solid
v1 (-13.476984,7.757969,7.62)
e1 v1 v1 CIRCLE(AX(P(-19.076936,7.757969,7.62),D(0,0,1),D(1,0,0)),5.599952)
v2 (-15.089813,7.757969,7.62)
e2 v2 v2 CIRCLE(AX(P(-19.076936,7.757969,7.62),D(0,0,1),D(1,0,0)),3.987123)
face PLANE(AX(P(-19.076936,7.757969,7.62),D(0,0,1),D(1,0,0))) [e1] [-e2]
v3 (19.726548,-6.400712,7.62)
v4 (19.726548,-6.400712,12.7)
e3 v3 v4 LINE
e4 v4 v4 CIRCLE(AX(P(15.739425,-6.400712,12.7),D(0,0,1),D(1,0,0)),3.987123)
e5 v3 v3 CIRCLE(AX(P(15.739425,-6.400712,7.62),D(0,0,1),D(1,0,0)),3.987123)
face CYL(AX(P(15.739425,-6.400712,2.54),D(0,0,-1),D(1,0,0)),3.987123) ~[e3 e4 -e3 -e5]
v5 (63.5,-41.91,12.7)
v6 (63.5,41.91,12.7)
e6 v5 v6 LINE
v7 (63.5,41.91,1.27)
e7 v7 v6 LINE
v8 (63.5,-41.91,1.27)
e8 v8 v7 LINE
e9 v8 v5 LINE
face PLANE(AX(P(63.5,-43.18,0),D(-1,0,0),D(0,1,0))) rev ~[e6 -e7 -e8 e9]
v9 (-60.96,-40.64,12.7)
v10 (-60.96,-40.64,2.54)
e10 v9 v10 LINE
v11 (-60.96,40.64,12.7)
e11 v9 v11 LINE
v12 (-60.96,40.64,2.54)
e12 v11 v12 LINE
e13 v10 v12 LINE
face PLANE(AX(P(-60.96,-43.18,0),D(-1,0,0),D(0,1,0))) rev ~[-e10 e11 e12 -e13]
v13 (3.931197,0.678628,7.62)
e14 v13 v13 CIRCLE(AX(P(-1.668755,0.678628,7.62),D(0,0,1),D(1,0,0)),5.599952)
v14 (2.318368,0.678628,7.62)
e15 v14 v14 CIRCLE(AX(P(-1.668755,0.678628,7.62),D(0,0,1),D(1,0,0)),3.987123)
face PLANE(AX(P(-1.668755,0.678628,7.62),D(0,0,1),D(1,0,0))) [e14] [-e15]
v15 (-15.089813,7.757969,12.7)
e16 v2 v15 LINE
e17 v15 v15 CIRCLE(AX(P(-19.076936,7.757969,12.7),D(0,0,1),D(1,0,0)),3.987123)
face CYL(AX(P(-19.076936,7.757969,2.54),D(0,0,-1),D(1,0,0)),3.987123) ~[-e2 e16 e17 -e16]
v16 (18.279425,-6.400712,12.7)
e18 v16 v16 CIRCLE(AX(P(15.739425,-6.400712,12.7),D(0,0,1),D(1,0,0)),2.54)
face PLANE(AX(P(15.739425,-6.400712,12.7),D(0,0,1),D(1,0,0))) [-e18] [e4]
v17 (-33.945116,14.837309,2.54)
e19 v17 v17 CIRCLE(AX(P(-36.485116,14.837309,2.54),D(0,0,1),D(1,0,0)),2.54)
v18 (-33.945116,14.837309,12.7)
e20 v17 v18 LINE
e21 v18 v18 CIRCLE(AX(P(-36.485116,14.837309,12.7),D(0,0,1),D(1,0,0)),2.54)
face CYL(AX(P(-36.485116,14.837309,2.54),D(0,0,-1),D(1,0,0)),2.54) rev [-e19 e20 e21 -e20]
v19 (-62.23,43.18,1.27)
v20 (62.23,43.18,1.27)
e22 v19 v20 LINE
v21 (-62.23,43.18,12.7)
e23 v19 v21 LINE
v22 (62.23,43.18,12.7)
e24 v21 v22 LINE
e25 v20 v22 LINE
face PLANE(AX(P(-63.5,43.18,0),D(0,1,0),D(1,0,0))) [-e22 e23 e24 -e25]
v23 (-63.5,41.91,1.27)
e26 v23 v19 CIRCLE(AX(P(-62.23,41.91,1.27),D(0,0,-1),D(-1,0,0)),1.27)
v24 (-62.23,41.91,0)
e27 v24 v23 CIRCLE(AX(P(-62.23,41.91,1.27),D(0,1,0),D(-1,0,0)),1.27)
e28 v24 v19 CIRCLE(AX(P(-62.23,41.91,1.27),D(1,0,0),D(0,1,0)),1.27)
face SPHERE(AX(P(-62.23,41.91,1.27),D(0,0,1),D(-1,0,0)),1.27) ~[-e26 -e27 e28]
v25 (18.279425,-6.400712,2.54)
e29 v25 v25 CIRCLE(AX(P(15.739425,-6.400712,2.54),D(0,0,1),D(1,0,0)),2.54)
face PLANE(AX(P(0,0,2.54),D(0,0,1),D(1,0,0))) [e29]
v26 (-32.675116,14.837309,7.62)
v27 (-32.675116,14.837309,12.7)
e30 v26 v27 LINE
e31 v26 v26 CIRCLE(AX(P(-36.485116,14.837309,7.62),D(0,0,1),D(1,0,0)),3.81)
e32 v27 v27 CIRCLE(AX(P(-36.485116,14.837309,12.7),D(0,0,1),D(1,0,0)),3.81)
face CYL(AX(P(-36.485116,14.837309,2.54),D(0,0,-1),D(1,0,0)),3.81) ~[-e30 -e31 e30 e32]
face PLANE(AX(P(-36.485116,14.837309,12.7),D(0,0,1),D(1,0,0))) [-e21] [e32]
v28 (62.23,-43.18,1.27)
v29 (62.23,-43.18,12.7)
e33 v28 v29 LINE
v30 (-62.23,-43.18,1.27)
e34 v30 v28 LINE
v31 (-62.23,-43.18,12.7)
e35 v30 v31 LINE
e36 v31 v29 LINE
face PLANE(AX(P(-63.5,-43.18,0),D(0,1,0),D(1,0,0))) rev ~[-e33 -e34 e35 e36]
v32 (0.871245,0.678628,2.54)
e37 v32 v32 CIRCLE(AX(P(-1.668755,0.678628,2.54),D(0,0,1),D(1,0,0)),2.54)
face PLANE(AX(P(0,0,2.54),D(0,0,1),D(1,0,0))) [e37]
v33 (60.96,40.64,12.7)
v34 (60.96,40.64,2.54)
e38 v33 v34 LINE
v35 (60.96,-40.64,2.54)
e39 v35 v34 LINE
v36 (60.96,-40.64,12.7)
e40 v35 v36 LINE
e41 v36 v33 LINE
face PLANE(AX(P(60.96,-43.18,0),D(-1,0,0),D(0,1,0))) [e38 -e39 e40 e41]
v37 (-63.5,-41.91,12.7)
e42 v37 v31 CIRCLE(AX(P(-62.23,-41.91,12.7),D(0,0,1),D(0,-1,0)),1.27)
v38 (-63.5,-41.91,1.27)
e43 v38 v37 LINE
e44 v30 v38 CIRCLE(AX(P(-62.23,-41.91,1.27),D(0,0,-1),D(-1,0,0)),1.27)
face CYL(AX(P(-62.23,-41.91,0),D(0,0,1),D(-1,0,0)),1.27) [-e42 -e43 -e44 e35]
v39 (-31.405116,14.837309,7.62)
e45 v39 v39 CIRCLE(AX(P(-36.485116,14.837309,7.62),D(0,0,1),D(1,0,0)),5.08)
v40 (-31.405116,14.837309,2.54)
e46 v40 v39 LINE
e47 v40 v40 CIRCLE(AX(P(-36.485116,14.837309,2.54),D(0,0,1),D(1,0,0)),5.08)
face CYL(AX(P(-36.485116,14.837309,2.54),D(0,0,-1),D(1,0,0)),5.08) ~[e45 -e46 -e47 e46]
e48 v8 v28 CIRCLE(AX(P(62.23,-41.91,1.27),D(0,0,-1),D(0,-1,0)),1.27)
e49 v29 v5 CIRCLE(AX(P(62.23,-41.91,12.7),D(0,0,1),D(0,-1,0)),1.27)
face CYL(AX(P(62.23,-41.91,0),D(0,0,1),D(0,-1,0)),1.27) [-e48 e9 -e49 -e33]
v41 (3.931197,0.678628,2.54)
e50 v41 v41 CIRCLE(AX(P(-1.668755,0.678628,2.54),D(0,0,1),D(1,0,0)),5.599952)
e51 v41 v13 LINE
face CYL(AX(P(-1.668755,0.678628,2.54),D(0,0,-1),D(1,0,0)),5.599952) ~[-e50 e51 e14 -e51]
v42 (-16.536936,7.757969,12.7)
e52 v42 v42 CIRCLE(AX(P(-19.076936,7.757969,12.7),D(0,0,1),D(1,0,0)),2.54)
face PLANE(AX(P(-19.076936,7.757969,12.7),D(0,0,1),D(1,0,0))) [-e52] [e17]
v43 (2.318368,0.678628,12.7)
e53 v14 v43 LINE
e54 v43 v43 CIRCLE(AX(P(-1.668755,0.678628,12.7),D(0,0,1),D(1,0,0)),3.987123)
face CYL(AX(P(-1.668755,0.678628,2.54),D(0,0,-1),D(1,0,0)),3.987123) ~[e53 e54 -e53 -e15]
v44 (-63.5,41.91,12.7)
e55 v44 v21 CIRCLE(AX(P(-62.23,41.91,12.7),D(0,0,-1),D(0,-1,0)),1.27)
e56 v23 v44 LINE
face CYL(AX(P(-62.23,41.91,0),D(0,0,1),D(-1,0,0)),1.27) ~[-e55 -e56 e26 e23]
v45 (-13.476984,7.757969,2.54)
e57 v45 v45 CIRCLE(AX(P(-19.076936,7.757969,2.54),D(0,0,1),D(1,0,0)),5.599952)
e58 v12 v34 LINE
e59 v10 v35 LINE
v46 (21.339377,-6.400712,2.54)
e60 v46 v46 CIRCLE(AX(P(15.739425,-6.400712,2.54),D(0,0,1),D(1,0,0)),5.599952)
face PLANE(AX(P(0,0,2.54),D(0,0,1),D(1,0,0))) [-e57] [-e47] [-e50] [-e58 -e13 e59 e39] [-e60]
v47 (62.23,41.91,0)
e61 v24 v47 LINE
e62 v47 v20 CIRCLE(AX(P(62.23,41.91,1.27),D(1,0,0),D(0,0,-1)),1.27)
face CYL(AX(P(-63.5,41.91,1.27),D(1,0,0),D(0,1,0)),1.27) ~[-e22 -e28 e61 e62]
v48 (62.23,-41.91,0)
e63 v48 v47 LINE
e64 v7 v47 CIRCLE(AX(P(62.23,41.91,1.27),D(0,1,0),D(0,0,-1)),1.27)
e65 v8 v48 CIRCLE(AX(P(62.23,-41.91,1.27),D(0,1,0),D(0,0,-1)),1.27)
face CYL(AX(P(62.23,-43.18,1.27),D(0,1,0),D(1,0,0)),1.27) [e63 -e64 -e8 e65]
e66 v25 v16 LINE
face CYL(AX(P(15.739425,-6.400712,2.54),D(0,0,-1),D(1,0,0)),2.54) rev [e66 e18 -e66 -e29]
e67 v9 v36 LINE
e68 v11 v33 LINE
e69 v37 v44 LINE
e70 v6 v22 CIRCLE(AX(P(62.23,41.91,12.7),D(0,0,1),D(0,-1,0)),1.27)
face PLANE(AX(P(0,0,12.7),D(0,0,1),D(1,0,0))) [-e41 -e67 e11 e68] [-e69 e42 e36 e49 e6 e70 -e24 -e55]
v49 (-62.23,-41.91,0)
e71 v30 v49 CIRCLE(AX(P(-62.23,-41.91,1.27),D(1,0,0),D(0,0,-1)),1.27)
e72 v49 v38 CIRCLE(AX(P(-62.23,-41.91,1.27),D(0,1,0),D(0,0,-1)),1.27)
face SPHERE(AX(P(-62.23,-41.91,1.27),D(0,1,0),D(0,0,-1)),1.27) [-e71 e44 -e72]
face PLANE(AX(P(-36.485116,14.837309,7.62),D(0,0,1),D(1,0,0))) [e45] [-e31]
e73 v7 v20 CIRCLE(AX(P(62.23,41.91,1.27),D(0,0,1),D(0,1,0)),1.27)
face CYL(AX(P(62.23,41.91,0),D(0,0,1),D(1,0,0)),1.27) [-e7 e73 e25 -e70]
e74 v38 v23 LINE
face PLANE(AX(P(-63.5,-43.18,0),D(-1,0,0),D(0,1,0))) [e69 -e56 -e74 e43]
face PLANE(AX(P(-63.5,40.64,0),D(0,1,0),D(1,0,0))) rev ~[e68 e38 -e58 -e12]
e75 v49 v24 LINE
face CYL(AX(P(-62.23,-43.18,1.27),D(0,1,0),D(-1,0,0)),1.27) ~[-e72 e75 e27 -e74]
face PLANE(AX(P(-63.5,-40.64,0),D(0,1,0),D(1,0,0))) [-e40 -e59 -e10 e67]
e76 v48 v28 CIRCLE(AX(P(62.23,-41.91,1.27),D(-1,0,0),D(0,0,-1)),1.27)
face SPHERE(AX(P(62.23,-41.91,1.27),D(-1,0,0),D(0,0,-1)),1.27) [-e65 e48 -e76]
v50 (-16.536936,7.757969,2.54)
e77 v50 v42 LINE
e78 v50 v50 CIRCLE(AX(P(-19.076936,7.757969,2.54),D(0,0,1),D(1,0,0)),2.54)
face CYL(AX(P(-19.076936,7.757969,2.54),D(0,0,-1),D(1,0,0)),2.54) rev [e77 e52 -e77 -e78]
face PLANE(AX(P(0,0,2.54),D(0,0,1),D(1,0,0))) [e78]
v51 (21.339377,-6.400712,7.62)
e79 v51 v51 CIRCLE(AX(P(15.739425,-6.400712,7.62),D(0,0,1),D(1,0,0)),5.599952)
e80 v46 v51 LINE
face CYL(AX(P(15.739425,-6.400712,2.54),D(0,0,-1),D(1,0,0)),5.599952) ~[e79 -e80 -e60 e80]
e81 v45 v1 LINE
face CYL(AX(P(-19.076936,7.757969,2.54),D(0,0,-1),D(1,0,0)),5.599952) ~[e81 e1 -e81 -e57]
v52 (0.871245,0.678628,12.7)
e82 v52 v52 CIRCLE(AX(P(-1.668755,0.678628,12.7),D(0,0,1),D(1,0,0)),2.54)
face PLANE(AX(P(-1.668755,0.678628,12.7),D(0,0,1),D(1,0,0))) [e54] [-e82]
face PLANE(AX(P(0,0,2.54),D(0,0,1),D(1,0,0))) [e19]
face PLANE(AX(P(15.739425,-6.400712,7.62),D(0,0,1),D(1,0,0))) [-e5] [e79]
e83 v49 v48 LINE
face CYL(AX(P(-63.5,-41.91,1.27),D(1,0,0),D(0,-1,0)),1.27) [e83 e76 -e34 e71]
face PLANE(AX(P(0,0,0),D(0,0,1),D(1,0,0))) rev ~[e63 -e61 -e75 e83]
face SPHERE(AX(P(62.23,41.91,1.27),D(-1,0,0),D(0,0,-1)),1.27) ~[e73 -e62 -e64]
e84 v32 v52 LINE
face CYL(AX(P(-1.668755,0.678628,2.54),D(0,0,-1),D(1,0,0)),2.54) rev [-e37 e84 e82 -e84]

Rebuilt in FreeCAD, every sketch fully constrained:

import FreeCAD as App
import Part
import Sketcher

V = App.Vector
Q = App.Units.Quantity


def edges_at(feature, points):
    """Names of the edges that pass closest to the given points."""
    edges = feature.Shape.Edges
    near = lambda p: min(range(len(edges)), key=lambda i: edges[i].distToShape(Part.Vertex(*p))[0])
    return sorted({f"Edge{near(p) + 1}" for p in points})


def faces_at(feature, points):
    """Names of the faces that lie closest to the given points."""
    faces = feature.Shape.Faces
    near = lambda p: min(range(len(faces)), key=lambda i: faces[i].distToShape(Part.Vertex(*p))[0])
    return sorted({f"Face{near(p) + 1}" for p in points})

doc = App.newDocument("Part")
params = doc.addObject("Spreadsheet::Sheet", "Params")
for row, (alias, value) in enumerate([
    ("sketch1_width", "5 in"),
    ("sketch1_height", "3.4 in"),
    ("pad1_length", "0.5 in"),
    ("thickness_wall", "0.1 in"),
    ("fillet_radius", "0.05 in"),
    ("sketch2_diameter", "0.3 in"),
    ("sketch2_diameter2", "0.2 in"),
    ("pad2_length", "0.4 in"),
    ("sketch3_diameter", "0.4 in"),
    ("sketch3_diameter2", "0.3 in"),
    ("pad3_length", "0.2 in"),
    ("sketch4_diameter", "0.2 in"),
    ("pad4_length", "0.4 in"),
    ("pad5_length", "0.2 in"),
], start=1):
    params.set(f"A{row}", alias)
    params.set(f"B{row}", "=" + value)
    params.setAlias(f"B{row}", alias)

body = doc.addObject("PartDesign::Body", "Body")

sketch1 = body.newObject("Sketcher::SketchObject", "Sketch")
sketch1.AttachmentSupport = (doc.getObject("XY_Plane"), [""])
sketch1.MapMode = "FlatFace"
sketch1.addGeometry(Part.LineSegment(V(-63.5, 43.18, 0), V(-63.5, -43.18, 0)), False)
sketch1.addGeometry(Part.LineSegment(V(-63.5, -43.18, 0), V(63.5, -43.18, 0)), False)
sketch1.addGeometry(Part.LineSegment(V(63.5, -43.18, 0), V(63.5, 43.18, 0)), False)
sketch1.addGeometry(Part.LineSegment(V(63.5, 43.18, 0), V(-63.5, 43.18, 0)), False)
sketch1.addConstraint(Sketcher.Constraint("Coincident", 0, 2, 1, 1))
sketch1.addConstraint(Sketcher.Constraint("Coincident", 1, 2, 2, 1))
sketch1.addConstraint(Sketcher.Constraint("Coincident", 2, 2, 3, 1))
sketch1.addConstraint(Sketcher.Constraint("Coincident", 3, 2, 0, 1))
sketch1.addConstraint(Sketcher.Constraint("Vertical", 0))
sketch1.addConstraint(Sketcher.Constraint("Horizontal", 1))
sketch1.addConstraint(Sketcher.Constraint("Vertical", 2))
sketch1.addConstraint(Sketcher.Constraint("Horizontal", 3))
sketch1.addConstraint(Sketcher.Constraint("Symmetric", 0, 2, 2, 2, -1, 1))
sketch1.addConstraint(Sketcher.Constraint("DistanceX", 1, 1, 1, 2, Q("5 in")))
sketch1.addConstraint(Sketcher.Constraint("DistanceY", 0, 2, 0, 1, Q("3.4 in")))
sketch1.setExpression("Constraints[9]", "Params.sketch1_width")
sketch1.setExpression("Constraints[10]", "Params.sketch1_height")
pad1 = body.newObject("PartDesign::Pad", "Pad")
pad1.Profile = sketch1
pad1.setExpression("Length", "Params.pad1_length")
doc.recompute()

thickness = body.newObject("PartDesign::Thickness", "Thickness")
thickness.Base = (pad1, faces_at(pad1, [(0, 0, 12.7)]))
thickness.setExpression("Value", "Params.thickness_wall")
thickness.Reversed = True
thickness.Join = "Arc"
doc.recompute()

fillet = body.newObject("PartDesign::Fillet", "Fillet")
fillet.Base = (thickness, edges_at(thickness, [
    (-63.5, 43.18, 6.35),
    (-63.5, 0, 0),
    (0, -43.18, 0),
    (0, 43.18, 0),
    (63.5, 0, 0),
    (63.5, 43.18, 6.35),
    (63.5, -43.18, 6.35),
    (-63.5, -43.18, 6.35),
]))
fillet.setExpression("Radius", "Params.fillet_radius")

sketch2 = body.newObject("Sketcher::SketchObject", "Sketch001")
sketch2.AttachmentSupport = (doc.getObject("XY_Plane"), [""])
sketch2.MapMode = "FlatFace"
sketch2.AttachmentOffset = App.Placement(V(0, 0, 0.1 * 25.4), App.Rotation())
sketch2.addGeometry(Part.Circle(V(-36.485116, 14.837309, 0), V(0, 0, 1), 3.81), False)
sketch2.addGeometry(Part.Circle(V(-36.485116, 14.837309, 0), V(0, 0, 1), 2.54), False)
sketch2.addGeometry(Part.Circle(V(-1.668755, 0.678628, 0), V(0, 0, 1), 3.987123), False)
sketch2.addGeometry(Part.Circle(V(-1.668755, 0.678628, 0), V(0, 0, 1), 2.54), False)
sketch2.addConstraint(Sketcher.Constraint("Coincident", 1, 3, 0, 3))
sketch2.addConstraint(Sketcher.Constraint("Coincident", 3, 3, 2, 3))
sketch2.addConstraint(Sketcher.Constraint("Equal", 1, 3))
sketch2.addConstraint(Sketcher.Constraint("Diameter", 0, Q("0.3 in")))
sketch2.addConstraint(Sketcher.Constraint("Diameter", 1, Q("0.2 in")))
sketch2.addConstraint(Sketcher.Constraint("Diameter", 2, 7.974246))
sketch2.addConstraint(Sketcher.Constraint("DistanceY", -1, 1, 0, 3, 14.837309))
sketch2.addConstraint(Sketcher.Constraint("DistanceY", -1, 1, 2, 3, 0.678628))
sketch2.addConstraint(Sketcher.Constraint("DistanceX", 0, 3, 2, 3, 34.816361))
sketch2.addConstraint(Sketcher.Constraint("DistanceX", 0, 3, -1, 1, 36.485116))
sketch2.setExpression("Constraints[3]", "Params.sketch2_diameter")
sketch2.setExpression("Constraints[4]", "Params.sketch2_diameter2")
pad2 = body.newObject("PartDesign::Pad", "Pad001")
pad2.Profile = sketch2
pad2.setExpression("Length", "Params.pad2_length")

sketch3 = body.newObject("Sketcher::SketchObject", "Sketch002")
sketch3.AttachmentSupport = (doc.getObject("XY_Plane"), [""])
sketch3.MapMode = "FlatFace"
sketch3.AttachmentOffset = App.Placement(V(0, 0, 0.1 * 25.4), App.Rotation())
sketch3.addGeometry(Part.Circle(V(-36.485116, 14.837309, 0), V(0, 0, 1), 5.08), False)
sketch3.addGeometry(Part.Circle(V(-36.485116, 14.837309, 0), V(0, 0, 1), 3.81), False)
sketch3.addGeometry(Part.Circle(V(-1.668755, 0.678628, 0), V(0, 0, 1), 5.599952), False)
sketch3.addGeometry(Part.Circle(V(-1.668755, 0.678628, 0), V(0, 0, 1), 3.987123), False)
sketch3.addConstraint(Sketcher.Constraint("Coincident", 1, 3, 0, 3))
sketch3.addConstraint(Sketcher.Constraint("Coincident", 3, 3, 2, 3))
sketch3.addConstraint(Sketcher.Constraint("Diameter", 0, Q("0.4 in")))
sketch3.addConstraint(Sketcher.Constraint("Diameter", 1, Q("0.3 in")))
sketch3.addConstraint(Sketcher.Constraint("Diameter", 2, 11.199904))
sketch3.addConstraint(Sketcher.Constraint("Diameter", 3, 7.974246))
sketch3.addConstraint(Sketcher.Constraint("DistanceY", -1, 1, 0, 3, 14.837309))
sketch3.addConstraint(Sketcher.Constraint("DistanceY", -1, 1, 2, 3, 0.678628))
sketch3.addConstraint(Sketcher.Constraint("DistanceX", 0, 3, 2, 3, 34.816361))
sketch3.addConstraint(Sketcher.Constraint("DistanceX", 0, 3, -1, 1, 36.485116))
sketch3.setExpression("Constraints[2]", "Params.sketch3_diameter")
sketch3.setExpression("Constraints[3]", "Params.sketch3_diameter2")
pad3 = body.newObject("PartDesign::Pad", "Pad002")
pad3.Profile = sketch3
pad3.setExpression("Length", "Params.pad3_length")

sketch4 = body.newObject("Sketcher::SketchObject", "Sketch003")
sketch4.AttachmentSupport = (doc.getObject("XY_Plane"), [""])
sketch4.MapMode = "FlatFace"
sketch4.AttachmentOffset = App.Placement(V(0, 0, 0.1 * 25.4), App.Rotation())
sketch4.addGeometry(Part.Circle(V(-19.076936, 7.757969, 0), V(0, 0, 1), 3.987123), False)
sketch4.addGeometry(Part.Circle(V(-19.076936, 7.757969, 0), V(0, 0, 1), 2.54), False)
sketch4.addGeometry(Part.Circle(V(15.739425, -6.400712, 0), V(0, 0, 1), 3.987123), False)
sketch4.addGeometry(Part.Circle(V(15.739425, -6.400712, 0), V(0, 0, 1), 2.54), False)
sketch4.addConstraint(Sketcher.Constraint("Coincident", 1, 3, 0, 3))
sketch4.addConstraint(Sketcher.Constraint("Coincident", 3, 3, 2, 3))
sketch4.addConstraint(Sketcher.Constraint("Equal", 0, 2))
sketch4.addConstraint(Sketcher.Constraint("Equal", 1, 3))
sketch4.addConstraint(Sketcher.Constraint("Diameter", 1, Q("0.2 in")))
sketch4.addConstraint(Sketcher.Constraint("Diameter", 0, 7.974246))
sketch4.addConstraint(Sketcher.Constraint("DistanceY", -1, 1, 0, 3, 7.757969))
sketch4.addConstraint(Sketcher.Constraint("DistanceX", 0, 3, 2, 3, 34.816361))
sketch4.addConstraint(Sketcher.Constraint("DistanceY", 2, 3, 0, 3, 14.158681))
sketch4.addConstraint(Sketcher.Constraint("DistanceX", 0, 3, -1, 1, 19.076936))
sketch4.setExpression("Constraints[4]", "Params.sketch4_diameter")
pad4 = body.newObject("PartDesign::Pad", "Pad003")
pad4.Profile = sketch4
pad4.setExpression("Length", "Params.pad4_length")

sketch5 = body.newObject("Sketcher::SketchObject", "Sketch004")
sketch5.AttachmentSupport = (doc.getObject("XY_Plane"), [""])
sketch5.MapMode = "FlatFace"
sketch5.AttachmentOffset = App.Placement(V(0, 0, 0.1 * 25.4), App.Rotation())
sketch5.addGeometry(Part.Circle(V(-19.076936, 7.757969, 0), V(0, 0, 1), 5.599952), False)
sketch5.addGeometry(Part.Circle(V(-19.076936, 7.757969, 0), V(0, 0, 1), 3.987123), False)
sketch5.addGeometry(Part.Circle(V(15.739425, -6.400712, 0), V(0, 0, 1), 5.599952), False)
sketch5.addGeometry(Part.Circle(V(15.739425, -6.400712, 0), V(0, 0, 1), 3.987123), False)
sketch5.addConstraint(Sketcher.Constraint("Coincident", 1, 3, 0, 3))
sketch5.addConstraint(Sketcher.Constraint("Coincident", 3, 3, 2, 3))
sketch5.addConstraint(Sketcher.Constraint("Equal", 0, 2))
sketch5.addConstraint(Sketcher.Constraint("Equal", 1, 3))
sketch5.addConstraint(Sketcher.Constraint("Diameter", 0, 11.199904))
sketch5.addConstraint(Sketcher.Constraint("Diameter", 1, 7.974246))
sketch5.addConstraint(Sketcher.Constraint("DistanceY", -1, 1, 0, 3, 7.757969))
sketch5.addConstraint(Sketcher.Constraint("DistanceX", 0, 3, 2, 3, 34.816361))
sketch5.addConstraint(Sketcher.Constraint("DistanceY", 2, 3, 0, 3, 14.158681))
sketch5.addConstraint(Sketcher.Constraint("DistanceX", 0, 3, -1, 1, 19.076936))
pad5 = body.newObject("PartDesign::Pad", "Pad004")
pad5.Profile = sketch5
pad5.setExpression("Length", "Params.pad5_length")

doc.recompute()
